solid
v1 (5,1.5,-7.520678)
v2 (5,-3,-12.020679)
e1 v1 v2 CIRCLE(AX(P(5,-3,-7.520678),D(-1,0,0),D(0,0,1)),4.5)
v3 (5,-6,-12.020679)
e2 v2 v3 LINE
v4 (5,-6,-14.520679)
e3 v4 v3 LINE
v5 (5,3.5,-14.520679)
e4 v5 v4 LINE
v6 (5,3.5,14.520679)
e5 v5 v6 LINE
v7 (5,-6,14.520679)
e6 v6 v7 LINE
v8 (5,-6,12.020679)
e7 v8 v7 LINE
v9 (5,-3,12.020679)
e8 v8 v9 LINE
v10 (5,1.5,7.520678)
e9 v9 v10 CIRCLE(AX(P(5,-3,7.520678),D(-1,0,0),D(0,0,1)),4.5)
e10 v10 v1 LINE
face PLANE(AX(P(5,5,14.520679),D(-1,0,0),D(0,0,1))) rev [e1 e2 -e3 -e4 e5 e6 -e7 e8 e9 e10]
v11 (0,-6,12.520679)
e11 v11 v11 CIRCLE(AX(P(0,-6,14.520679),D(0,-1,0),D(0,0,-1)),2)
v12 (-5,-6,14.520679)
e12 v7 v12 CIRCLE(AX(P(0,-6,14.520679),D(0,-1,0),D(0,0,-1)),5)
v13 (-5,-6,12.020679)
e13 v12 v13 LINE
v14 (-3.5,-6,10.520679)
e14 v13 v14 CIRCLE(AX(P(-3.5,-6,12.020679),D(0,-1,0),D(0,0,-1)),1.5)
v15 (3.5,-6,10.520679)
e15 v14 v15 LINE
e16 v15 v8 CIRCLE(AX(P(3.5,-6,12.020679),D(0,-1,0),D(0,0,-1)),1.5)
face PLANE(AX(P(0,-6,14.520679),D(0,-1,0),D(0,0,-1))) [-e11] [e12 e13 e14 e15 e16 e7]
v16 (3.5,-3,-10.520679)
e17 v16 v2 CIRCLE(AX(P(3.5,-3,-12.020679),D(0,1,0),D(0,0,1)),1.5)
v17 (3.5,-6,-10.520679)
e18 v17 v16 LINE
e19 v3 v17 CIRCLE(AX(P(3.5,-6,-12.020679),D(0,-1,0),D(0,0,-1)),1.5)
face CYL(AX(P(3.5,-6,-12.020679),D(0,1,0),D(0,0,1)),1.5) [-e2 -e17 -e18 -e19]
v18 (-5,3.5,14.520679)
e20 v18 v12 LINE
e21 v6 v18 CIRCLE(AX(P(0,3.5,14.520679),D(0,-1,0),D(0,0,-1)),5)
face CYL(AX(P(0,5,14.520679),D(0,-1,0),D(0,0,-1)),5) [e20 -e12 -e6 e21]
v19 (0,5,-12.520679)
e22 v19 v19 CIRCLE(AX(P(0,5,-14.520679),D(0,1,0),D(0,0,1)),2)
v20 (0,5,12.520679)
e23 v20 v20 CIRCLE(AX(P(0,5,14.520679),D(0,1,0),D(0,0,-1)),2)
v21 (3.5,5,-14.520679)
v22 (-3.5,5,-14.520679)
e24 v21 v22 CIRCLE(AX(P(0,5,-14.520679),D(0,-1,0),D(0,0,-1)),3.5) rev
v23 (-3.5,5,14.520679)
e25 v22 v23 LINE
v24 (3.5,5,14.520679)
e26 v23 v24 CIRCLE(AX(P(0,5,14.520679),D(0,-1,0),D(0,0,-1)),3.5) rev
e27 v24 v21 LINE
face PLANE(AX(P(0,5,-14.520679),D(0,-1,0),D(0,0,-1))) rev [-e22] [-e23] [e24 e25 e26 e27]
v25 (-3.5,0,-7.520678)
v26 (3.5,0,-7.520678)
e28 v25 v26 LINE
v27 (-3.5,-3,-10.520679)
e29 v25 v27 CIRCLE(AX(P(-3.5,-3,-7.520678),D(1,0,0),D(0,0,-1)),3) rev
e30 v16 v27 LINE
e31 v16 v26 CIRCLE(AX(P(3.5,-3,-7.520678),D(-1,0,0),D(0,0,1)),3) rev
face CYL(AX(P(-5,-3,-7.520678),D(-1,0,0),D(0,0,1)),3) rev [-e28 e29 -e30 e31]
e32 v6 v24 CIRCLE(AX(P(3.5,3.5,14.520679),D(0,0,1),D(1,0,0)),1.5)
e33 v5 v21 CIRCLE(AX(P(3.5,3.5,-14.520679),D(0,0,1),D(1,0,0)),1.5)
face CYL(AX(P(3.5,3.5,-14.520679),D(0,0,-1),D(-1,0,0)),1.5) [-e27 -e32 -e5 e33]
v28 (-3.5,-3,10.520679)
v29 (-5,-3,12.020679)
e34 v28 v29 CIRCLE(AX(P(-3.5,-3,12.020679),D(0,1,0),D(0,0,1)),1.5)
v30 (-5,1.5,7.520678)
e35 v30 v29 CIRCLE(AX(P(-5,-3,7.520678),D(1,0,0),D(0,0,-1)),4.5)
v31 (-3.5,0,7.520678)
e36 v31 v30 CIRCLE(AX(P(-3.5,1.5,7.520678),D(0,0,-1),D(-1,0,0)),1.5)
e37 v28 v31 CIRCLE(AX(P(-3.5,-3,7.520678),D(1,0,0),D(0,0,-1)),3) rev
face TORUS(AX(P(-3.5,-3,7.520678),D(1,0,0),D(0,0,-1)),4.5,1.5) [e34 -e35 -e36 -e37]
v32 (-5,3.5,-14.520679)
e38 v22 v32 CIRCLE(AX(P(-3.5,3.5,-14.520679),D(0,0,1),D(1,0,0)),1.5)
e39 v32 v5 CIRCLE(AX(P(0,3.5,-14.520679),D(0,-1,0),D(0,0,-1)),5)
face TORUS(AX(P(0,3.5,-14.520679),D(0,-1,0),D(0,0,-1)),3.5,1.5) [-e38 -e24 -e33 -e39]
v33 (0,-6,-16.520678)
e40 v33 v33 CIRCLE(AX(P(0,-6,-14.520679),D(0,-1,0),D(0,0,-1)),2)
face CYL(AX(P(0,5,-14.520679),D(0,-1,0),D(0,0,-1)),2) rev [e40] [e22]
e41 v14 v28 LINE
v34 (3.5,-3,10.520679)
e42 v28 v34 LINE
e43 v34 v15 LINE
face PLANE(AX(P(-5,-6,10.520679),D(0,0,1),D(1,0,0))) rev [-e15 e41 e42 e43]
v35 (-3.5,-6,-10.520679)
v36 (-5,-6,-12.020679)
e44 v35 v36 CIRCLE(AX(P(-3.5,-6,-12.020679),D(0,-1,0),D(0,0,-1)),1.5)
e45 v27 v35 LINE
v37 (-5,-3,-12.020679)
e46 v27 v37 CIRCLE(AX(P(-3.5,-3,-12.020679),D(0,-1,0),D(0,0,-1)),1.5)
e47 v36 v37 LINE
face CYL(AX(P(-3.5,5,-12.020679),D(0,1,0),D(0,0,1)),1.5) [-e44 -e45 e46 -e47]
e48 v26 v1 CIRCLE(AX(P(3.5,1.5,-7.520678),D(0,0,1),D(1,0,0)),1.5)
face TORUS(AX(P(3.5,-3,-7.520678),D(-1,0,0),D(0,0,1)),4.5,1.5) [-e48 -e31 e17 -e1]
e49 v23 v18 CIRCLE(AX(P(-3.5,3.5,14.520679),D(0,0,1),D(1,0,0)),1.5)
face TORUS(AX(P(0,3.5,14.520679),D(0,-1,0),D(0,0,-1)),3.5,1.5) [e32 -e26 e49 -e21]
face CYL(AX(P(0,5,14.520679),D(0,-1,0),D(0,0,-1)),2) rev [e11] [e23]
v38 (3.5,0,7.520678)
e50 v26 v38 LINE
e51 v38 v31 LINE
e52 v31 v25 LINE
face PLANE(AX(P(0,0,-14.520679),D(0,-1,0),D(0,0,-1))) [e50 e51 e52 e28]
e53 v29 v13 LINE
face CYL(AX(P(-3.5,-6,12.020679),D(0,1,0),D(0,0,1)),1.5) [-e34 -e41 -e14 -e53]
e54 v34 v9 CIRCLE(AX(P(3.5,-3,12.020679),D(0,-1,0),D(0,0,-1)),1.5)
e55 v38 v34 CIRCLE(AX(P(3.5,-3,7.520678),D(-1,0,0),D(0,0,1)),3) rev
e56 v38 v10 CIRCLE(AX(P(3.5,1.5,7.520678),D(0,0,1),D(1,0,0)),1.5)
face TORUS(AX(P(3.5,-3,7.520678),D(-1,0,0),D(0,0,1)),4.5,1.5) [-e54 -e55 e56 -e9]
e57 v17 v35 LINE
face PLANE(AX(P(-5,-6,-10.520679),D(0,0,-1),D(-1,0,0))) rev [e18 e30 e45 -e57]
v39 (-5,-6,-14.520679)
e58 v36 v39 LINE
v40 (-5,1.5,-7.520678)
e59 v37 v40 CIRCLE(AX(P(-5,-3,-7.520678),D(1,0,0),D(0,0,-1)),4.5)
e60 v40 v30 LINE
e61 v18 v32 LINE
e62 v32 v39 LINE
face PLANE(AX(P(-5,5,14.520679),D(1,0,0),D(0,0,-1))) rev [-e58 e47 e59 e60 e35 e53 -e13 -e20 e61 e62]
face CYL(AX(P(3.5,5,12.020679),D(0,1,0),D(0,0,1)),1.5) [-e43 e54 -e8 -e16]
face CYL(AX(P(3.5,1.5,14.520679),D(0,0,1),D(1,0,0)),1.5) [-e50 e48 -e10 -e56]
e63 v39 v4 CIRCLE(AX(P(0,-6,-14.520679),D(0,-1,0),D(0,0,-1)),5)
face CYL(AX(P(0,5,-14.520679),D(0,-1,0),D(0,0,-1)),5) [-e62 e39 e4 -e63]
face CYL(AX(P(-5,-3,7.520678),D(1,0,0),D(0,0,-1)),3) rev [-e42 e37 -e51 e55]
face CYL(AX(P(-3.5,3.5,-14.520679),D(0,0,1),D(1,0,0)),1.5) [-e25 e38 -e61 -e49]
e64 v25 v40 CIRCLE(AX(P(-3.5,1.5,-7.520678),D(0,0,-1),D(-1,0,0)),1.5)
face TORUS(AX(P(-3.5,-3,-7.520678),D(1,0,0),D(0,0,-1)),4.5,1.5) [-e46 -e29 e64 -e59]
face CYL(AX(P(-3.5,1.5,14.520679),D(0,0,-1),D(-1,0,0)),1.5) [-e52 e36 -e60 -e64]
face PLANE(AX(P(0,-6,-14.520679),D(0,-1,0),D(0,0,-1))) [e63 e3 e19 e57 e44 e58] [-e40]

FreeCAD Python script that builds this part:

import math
import FreeCAD as App
import Part
import Sketcher

V = App.Vector


def edges_at(feature, points):
    """Names of the edges that pass closest to the given points."""
    edges = feature.Shape.Edges
    near = lambda p: min(range(len(edges)), key=lambda i: edges[i].distToShape(Part.Vertex(*p))[0])
    return sorted({f"Edge{near(p) + 1}" for p in points})

doc = App.newDocument("Part")
body = doc.addObject("PartDesign::Body", "Body")

sketch1 = body.newObject("Sketcher::SketchObject", "Sketch")
sketch1.AttachmentSupport = (doc.getObject("XZ_Plane"), [""])
sketch1.MapMode = "FlatFace"
sketch1.addGeometry(Part.LineSegment(V(-5, -14.5, 0), V(-5, 14.5, 0)), False)
sketch1.addGeometry(Part.ArcOfCircle(Part.Circle(V(0, 14.5, 0), V(0, 0, 1), 5), math.radians(0), math.radians(180)), False)
sketch1.addGeometry(Part.LineSegment(V(5, 14.5, 0), V(5, -14.5, 0)), False)
sketch1.addGeometry(Part.ArcOfCircle(Part.Circle(V(0, -14.5, 0), V(0, 0, 1), 5), math.radians(180), math.radians(360)), False)
sketch1.addGeometry(Part.Circle(V(0, 14.5, 0), V(0, 0, 1), 2), False)
sketch1.addGeometry(Part.Circle(V(0, -14.5, 0), V(0, 0, 1), 2), False)
sketch1.addConstraint(Sketcher.Constraint("Tangent", 0, 2, 1, 2))
sketch1.addConstraint(Sketcher.Constraint("Tangent", 1, 1, 2, 1))
sketch1.addConstraint(Sketcher.Constraint("Tangent", 2, 2, 3, 2))
sketch1.addConstraint(Sketcher.Constraint("Tangent", 3, 1, 0, 1))
sketch1.addConstraint(Sketcher.Constraint("Vertical", 0))
sketch1.addConstraint(Sketcher.Constraint("Vertical", 2))
sketch1.addConstraint(Sketcher.Constraint("Coincident", 4, 3, 1, 3))
sketch1.addConstraint(Sketcher.Constraint("Coincident", 5, 3, 3, 3))
sketch1.addConstraint(Sketcher.Constraint("Equal", 4, 5))
sketch1.addConstraint(Sketcher.Constraint("Symmetric", 1, 3, 3, 3, -1, 1))
sketch1.addConstraint(Sketcher.Constraint("Diameter", 4, 4.0))
sketch1.addConstraint(Sketcher.Constraint("Radius", 1, 5.0))
sketch1.addConstraint(Sketcher.Constraint("DistanceY", 0, 1, 0, 2, 29.041357))
pad1 = body.newObject("PartDesign::Pad", "Pad")
pad1.Profile = sketch1
pad1.Length = 5
pad1.Reversed = True

sketch2 = body.newObject("Sketcher::SketchObject", "Sketch001")
sketch2.AttachmentSupport = (doc.getObject("XZ_Plane"), [""])
sketch2.MapMode = "FlatFace"
sketch2.AttachmentOffset = App.Placement(V(0, 0, 6), App.Rotation())
sketch2.addGeometry(Part.LineSegment(V(5, -10.5, 0), V(-5, -10.5, 0)), False)
sketch2.addGeometry(Part.LineSegment(V(-5, -10.5, 0), V(-5, -14.5, 0)), False)
sketch2.addGeometry(Part.ArcOfCircle(Part.Circle(V(0, -14.5, 0), V(0, 0, 1), 5), math.radians(180), math.radians(360)), False)
sketch2.addGeometry(Part.LineSegment(V(5, -14.5, 0), V(5, -10.5, 0)), False)
sketch2.addGeometry(Part.Circle(V(0, -14.5, 0), V(0, 0, 1), 2), False)
sketch2.addGeometry(Part.LineSegment(V(-5, 10.5, 0), V(5, 10.5, 0)), False)
sketch2.addGeometry(Part.LineSegment(V(5, 10.5, 0), V(5, 14.5, 0)), False)
sketch2.addGeometry(Part.ArcOfCircle(Part.Circle(V(0, 14.5, 0), V(0, 0, 1), 5), math.radians(0), math.radians(180)), False)
sketch2.addGeometry(Part.LineSegment(V(-5, 14.5, 0), V(-5, 10.5, 0)), False)
sketch2.addGeometry(Part.Circle(V(0, 14.5, 0), V(0, 0, 1), 2), False)
sketch2.addConstraint(Sketcher.Constraint("Coincident", 0, 2, 1, 1))
sketch2.addConstraint(Sketcher.Constraint("Tangent", 1, 2, 2, 1))
sketch2.addConstraint(Sketcher.Constraint("Tangent", 2, 2, 3, 1))
sketch2.addConstraint(Sketcher.Constraint("Coincident", 3, 2, 0, 1))
sketch2.addConstraint(Sketcher.Constraint("Coincident", 5, 2, 6, 1))
sketch2.addConstraint(Sketcher.Constraint("Tangent", 6, 2, 7, 1))
sketch2.addConstraint(Sketcher.Constraint("Tangent", 7, 2, 8, 1))
sketch2.addConstraint(Sketcher.Constraint("Coincident", 8, 2, 5, 1))
sketch2.addConstraint(Sketcher.Constraint("Horizontal", 0))
sketch2.addConstraint(Sketcher.Constraint("Vertical", 1))
sketch2.addConstraint(Sketcher.Constraint("Vertical", 3))
sketch2.addConstraint(Sketcher.Constraint("Horizontal", 5))
sketch2.addConstraint(Sketcher.Constraint("Vertical", 6))
sketch2.addConstraint(Sketcher.Constraint("Vertical", 8))
sketch2.addConstraint(Sketcher.Constraint("Coincident", 4, 3, 2, 3))
sketch2.addConstraint(Sketcher.Constraint("Coincident", 9, 3, 7, 3))
sketch2.addConstraint(Sketcher.Constraint("Equal", 2, 7))
sketch2.addConstraint(Sketcher.Constraint("Equal", 4, 9))
sketch2.addConstraint(Sketcher.Constraint("Symmetric", 2, 3, 7, 3, -1, 1))
sketch2.addConstraint(Sketcher.Constraint("Symmetric", 3, 2, 5, 2, -1))
sketch2.addConstraint(Sketcher.Constraint("Diameter", 4, 4.0))
sketch2.addConstraint(Sketcher.Constraint("Radius", 2, 5.0))
sketch2.addConstraint(Sketcher.Constraint("DistanceY", 1, 2, 1, 1, 4.0))
sketch2.addConstraint(Sketcher.Constraint("DistanceY", 2, 3, -1, 1, 14.520679))
pad2 = body.newObject("PartDesign::Pad", "Pad001")
pad2.Profile = sketch2
pad2.Length = 6
pad2.Reversed = True
doc.recompute()

fillet = body.newObject("PartDesign::Fillet", "Fillet")
fillet.Base = (pad2, edges_at(pad2, [(0, 0, -10.521), (0, 0, 10.521)]))
fillet.Radius = 3
doc.recompute()

fillet2 = body.newObject("PartDesign::Fillet", "Fillet001")
fillet2.Base = (fillet, edges_at(fillet, [
    (0, 5, 19.521),
    (5, 5, 0),
    (-5, -4.5, -10.521),
    (5, -4.5, -10.521),
    (-5, -4.5, 10.521),
    (5, -4.5, 10.521),
    (0, 5, -19.521),
    (5, 0, 0),
    (-5, 0, 0),
    (-5, -0.879, -9.642),
    (5, -0.879, -9.642),
    (5, -0.879, 9.642),
    (-5, -0.879, 9.642),
    (-5, 5, 0),
]))
fillet2.Radius = 1.5

doc.recompute()
